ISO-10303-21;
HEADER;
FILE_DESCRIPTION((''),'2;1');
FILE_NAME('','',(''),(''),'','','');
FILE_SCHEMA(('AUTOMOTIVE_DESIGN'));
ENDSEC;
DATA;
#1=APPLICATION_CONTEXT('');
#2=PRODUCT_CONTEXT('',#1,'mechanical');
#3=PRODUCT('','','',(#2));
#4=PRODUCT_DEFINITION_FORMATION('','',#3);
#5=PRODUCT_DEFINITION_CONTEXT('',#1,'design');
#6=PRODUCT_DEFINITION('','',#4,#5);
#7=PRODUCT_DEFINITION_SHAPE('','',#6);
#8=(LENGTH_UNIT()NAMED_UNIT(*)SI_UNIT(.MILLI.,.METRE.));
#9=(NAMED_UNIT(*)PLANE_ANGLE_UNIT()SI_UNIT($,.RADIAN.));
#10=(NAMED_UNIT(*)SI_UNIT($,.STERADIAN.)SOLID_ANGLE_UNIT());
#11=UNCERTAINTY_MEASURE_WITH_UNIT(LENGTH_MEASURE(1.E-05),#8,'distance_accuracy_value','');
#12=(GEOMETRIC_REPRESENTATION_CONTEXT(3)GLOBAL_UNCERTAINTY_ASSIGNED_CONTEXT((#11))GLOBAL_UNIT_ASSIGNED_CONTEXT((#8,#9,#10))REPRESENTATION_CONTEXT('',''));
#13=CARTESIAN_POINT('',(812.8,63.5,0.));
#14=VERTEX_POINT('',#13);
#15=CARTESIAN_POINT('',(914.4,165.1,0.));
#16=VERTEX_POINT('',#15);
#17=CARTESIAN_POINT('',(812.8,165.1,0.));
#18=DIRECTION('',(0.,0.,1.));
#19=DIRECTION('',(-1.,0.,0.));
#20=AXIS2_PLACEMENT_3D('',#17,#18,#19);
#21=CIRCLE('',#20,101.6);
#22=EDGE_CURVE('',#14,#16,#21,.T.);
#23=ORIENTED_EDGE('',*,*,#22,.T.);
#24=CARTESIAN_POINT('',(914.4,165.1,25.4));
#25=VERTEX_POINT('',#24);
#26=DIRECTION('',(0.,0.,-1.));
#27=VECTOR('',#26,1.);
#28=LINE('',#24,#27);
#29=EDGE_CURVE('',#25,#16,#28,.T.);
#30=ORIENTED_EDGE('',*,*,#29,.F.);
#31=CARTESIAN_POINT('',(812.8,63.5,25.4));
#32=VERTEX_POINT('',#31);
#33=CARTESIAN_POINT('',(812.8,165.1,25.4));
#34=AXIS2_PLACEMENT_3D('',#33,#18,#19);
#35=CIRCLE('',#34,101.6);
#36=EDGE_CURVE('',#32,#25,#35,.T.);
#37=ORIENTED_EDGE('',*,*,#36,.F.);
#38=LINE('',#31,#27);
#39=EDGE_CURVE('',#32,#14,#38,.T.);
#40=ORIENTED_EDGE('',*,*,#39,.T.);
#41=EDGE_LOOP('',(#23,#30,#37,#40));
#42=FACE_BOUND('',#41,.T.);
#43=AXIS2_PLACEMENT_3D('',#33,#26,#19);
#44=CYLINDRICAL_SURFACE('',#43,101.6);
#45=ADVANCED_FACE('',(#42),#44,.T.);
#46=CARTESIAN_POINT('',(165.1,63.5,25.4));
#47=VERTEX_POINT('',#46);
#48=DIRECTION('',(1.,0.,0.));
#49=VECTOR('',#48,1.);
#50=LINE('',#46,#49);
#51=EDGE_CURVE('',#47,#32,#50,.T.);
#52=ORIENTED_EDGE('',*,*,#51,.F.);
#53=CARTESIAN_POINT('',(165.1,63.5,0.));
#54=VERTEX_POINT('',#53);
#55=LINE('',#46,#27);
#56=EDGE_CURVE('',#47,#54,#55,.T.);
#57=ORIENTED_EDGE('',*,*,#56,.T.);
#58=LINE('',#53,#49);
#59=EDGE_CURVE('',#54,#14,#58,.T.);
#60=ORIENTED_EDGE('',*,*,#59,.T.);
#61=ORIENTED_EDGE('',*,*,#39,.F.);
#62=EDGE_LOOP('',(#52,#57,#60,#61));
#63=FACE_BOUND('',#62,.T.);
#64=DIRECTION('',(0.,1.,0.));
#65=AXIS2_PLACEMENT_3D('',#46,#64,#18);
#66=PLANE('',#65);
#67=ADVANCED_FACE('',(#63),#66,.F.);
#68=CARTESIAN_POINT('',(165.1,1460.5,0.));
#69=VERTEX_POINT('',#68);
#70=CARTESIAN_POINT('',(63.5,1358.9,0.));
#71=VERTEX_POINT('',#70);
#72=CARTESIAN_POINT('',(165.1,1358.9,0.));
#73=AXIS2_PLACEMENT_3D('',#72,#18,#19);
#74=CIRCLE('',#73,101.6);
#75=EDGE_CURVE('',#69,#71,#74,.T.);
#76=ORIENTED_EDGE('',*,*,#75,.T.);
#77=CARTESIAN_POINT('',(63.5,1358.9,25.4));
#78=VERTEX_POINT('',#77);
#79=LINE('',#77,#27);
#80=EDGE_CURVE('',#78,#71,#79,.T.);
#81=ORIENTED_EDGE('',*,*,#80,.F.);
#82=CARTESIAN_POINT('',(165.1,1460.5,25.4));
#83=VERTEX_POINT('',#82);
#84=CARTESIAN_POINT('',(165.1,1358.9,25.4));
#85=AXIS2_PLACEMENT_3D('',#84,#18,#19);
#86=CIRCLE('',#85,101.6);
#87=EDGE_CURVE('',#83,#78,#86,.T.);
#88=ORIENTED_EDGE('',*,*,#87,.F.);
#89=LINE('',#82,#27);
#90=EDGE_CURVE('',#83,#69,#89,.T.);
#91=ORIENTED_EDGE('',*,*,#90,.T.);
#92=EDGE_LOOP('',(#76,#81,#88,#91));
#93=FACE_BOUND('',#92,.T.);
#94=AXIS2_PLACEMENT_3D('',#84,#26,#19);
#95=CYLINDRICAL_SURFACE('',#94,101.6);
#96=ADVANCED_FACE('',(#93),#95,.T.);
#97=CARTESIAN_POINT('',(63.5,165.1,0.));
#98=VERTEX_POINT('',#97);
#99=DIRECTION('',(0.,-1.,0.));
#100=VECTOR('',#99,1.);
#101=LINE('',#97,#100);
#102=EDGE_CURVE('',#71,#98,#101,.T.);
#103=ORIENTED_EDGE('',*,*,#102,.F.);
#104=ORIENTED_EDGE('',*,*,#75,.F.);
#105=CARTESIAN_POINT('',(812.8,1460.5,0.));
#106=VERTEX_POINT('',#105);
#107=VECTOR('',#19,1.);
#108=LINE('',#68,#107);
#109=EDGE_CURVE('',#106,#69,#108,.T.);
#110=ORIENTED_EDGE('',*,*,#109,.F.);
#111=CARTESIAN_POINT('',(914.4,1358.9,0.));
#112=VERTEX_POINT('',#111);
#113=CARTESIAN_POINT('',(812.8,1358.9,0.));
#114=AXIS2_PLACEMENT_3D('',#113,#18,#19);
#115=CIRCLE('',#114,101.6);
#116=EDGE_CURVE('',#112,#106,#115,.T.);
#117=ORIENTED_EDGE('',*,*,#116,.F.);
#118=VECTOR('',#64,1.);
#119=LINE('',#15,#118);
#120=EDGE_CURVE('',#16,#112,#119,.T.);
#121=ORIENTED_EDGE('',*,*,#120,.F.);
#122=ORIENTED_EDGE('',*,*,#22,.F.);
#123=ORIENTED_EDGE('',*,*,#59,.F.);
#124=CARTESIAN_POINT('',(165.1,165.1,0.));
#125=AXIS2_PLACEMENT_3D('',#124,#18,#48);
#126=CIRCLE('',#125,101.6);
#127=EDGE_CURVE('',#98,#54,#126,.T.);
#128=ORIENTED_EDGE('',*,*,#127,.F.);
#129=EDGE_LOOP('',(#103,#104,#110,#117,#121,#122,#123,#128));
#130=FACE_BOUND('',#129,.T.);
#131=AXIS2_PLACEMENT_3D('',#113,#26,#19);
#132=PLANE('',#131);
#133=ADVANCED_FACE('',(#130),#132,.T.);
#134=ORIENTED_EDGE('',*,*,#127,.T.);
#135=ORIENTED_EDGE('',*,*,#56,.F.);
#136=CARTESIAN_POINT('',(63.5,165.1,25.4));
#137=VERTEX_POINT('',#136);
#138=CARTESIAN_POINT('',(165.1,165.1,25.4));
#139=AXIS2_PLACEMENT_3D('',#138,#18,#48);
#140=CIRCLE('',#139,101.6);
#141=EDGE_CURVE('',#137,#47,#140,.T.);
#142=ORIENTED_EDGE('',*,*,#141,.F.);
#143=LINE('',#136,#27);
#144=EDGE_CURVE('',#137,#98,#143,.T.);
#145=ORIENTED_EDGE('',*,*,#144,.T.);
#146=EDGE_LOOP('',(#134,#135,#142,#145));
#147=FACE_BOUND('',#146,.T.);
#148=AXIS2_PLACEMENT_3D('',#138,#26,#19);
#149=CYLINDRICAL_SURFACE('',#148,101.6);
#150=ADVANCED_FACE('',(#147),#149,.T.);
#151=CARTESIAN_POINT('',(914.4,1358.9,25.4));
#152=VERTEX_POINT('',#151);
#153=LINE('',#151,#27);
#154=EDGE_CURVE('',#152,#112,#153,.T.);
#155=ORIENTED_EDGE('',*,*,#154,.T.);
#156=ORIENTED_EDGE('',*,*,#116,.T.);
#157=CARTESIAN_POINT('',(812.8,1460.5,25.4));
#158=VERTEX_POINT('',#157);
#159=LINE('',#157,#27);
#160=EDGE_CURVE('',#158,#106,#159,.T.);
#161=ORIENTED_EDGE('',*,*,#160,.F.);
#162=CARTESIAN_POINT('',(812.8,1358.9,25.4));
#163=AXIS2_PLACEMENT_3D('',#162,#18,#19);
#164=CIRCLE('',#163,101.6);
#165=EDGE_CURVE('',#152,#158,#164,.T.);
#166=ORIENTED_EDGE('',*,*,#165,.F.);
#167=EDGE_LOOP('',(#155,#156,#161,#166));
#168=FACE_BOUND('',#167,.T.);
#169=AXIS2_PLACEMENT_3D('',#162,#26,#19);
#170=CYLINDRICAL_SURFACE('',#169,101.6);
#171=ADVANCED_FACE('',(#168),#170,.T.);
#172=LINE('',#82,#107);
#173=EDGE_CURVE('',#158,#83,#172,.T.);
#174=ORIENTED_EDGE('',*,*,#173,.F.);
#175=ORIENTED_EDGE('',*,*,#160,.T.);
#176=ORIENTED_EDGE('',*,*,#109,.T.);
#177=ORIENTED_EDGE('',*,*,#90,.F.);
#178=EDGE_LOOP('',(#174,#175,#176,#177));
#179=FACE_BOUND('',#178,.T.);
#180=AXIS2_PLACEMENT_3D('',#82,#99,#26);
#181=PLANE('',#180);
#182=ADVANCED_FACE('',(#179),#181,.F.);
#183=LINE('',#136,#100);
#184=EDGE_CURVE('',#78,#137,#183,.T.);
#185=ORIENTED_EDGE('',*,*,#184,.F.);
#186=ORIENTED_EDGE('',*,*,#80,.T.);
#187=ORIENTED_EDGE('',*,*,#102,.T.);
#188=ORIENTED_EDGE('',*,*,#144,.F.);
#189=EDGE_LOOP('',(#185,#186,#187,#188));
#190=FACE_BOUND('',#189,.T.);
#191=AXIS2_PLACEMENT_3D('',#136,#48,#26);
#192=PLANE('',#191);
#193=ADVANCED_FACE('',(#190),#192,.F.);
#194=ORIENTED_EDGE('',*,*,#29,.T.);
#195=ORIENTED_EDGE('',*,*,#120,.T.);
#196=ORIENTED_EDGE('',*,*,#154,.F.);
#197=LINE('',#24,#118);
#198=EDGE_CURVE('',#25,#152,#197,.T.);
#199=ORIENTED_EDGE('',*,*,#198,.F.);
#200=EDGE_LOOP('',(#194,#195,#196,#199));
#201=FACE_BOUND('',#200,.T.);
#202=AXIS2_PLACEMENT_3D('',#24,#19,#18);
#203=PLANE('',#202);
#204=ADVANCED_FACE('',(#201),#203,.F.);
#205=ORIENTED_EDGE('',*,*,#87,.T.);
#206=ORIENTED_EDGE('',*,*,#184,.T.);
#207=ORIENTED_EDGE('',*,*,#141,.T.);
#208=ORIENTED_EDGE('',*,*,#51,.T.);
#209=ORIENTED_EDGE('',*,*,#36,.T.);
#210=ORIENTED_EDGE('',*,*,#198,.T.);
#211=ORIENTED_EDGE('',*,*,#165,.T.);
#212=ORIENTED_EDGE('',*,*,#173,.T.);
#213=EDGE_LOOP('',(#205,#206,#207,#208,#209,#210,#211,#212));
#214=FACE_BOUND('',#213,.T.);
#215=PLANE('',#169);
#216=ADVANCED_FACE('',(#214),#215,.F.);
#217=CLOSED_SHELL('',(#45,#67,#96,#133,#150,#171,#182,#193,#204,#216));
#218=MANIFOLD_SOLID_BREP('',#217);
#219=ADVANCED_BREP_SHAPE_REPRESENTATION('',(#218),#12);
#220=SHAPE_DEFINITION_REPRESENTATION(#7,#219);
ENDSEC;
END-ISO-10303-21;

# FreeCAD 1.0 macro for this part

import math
import FreeCAD as App
import Part
import Sketcher

V = App.Vector
Q = App.Units.Quantity

doc = App.newDocument("Part")
params = doc.addObject("Spreadsheet::Sheet", "Params")
for row, (alias, value) in enumerate([
    ("sketch1_radius", "4 in"),
    ("sketch1_height", "47 in"),
    ("sketch1_width", "25.5 in"),
    ("pad1_length", "1 in"),
], start=1):
    params.set(f"A{row}", alias)
    params.set(f"B{row}", "=" + value)
    params.setAlias(f"B{row}", alias)

body = doc.addObject("PartDesign::Body", "Body")

sketch1 = body.newObject("Sketcher::SketchObject", "Sketch")
sketch1.AttachmentSupport = (doc.getObject("XY_Plane"), [""])
sketch1.MapMode = "FlatFace"
sketch1.addGeometry([
    Part.LineSegment(V(64, 1359, 0), V(64, 165, 0)),
    Part.ArcOfCircle(Part.Circle(V(165, 165, 0), V(0, 0, 1), 102), math.radians(180), math.radians(270)),
    Part.LineSegment(V(165, 64, 0), V(813, 64, 0)),
    Part.ArcOfCircle(Part.Circle(V(813, 165, 0), V(0, 0, 1), 102), math.radians(-90), math.radians(0)),
    Part.LineSegment(V(914, 165, 0), V(914, 1359, 0)),
    Part.ArcOfCircle(Part.Circle(V(813, 1359, 0), V(0, 0, 1), 102), math.radians(0), math.radians(90)),
    Part.LineSegment(V(813, 1460, 0), V(165, 1460, 0)),
    Part.ArcOfCircle(Part.Circle(V(165, 1359, 0), V(0, 0, 1), 102), math.radians(90), math.radians(180)),
], False)
sketch1.addConstraint([
    Sketcher.Constraint("Tangent", 0, 2, 1, 1),
    Sketcher.Constraint("Tangent", 1, 2, 2, 1),
    Sketcher.Constraint("Tangent", 2, 2, 3, 1),
    Sketcher.Constraint("Tangent", 3, 2, 4, 1),
    Sketcher.Constraint("Tangent", 4, 2, 5, 1),
    Sketcher.Constraint("Tangent", 5, 2, 6, 1),
    Sketcher.Constraint("Tangent", 6, 2, 7, 1),
    Sketcher.Constraint("Tangent", 7, 2, 0, 1),
    Sketcher.Constraint("Vertical", 0),
    Sketcher.Constraint("Horizontal", 2),
    Sketcher.Constraint("Vertical", 4),
    Sketcher.Constraint("Horizontal", 6),
    Sketcher.Constraint("Equal", 1, 3),
    Sketcher.Constraint("Equal", 3, 5),
    Sketcher.Constraint("Equal", 5, 7),
    Sketcher.Constraint("Radius", 1, Q("4 in")),
    Sketcher.Constraint("DistanceY", 0, 2, 0, 1, Q("47 in")),
    Sketcher.Constraint("DistanceX", 2, 1, 2, 2, Q("25.5 in")),
    Sketcher.Constraint("DistanceX", -1, 1, 3, 3, Q("32 in")),
    Sketcher.Constraint("DistanceY", -1, 1, 1, 3, Q("6.5 in")),
])
sketch1.setExpression("Constraints[15]", "Params.sketch1_radius")
sketch1.setExpression("Constraints[16]", "Params.sketch1_height")
sketch1.setExpression("Constraints[17]", "Params.sketch1_width")
pad1 = body.newObject("PartDesign::Pad", "Pad")
pad1.Profile = sketch1
pad1.setExpression("Length", "Params.pad1_length")

doc.recompute()
